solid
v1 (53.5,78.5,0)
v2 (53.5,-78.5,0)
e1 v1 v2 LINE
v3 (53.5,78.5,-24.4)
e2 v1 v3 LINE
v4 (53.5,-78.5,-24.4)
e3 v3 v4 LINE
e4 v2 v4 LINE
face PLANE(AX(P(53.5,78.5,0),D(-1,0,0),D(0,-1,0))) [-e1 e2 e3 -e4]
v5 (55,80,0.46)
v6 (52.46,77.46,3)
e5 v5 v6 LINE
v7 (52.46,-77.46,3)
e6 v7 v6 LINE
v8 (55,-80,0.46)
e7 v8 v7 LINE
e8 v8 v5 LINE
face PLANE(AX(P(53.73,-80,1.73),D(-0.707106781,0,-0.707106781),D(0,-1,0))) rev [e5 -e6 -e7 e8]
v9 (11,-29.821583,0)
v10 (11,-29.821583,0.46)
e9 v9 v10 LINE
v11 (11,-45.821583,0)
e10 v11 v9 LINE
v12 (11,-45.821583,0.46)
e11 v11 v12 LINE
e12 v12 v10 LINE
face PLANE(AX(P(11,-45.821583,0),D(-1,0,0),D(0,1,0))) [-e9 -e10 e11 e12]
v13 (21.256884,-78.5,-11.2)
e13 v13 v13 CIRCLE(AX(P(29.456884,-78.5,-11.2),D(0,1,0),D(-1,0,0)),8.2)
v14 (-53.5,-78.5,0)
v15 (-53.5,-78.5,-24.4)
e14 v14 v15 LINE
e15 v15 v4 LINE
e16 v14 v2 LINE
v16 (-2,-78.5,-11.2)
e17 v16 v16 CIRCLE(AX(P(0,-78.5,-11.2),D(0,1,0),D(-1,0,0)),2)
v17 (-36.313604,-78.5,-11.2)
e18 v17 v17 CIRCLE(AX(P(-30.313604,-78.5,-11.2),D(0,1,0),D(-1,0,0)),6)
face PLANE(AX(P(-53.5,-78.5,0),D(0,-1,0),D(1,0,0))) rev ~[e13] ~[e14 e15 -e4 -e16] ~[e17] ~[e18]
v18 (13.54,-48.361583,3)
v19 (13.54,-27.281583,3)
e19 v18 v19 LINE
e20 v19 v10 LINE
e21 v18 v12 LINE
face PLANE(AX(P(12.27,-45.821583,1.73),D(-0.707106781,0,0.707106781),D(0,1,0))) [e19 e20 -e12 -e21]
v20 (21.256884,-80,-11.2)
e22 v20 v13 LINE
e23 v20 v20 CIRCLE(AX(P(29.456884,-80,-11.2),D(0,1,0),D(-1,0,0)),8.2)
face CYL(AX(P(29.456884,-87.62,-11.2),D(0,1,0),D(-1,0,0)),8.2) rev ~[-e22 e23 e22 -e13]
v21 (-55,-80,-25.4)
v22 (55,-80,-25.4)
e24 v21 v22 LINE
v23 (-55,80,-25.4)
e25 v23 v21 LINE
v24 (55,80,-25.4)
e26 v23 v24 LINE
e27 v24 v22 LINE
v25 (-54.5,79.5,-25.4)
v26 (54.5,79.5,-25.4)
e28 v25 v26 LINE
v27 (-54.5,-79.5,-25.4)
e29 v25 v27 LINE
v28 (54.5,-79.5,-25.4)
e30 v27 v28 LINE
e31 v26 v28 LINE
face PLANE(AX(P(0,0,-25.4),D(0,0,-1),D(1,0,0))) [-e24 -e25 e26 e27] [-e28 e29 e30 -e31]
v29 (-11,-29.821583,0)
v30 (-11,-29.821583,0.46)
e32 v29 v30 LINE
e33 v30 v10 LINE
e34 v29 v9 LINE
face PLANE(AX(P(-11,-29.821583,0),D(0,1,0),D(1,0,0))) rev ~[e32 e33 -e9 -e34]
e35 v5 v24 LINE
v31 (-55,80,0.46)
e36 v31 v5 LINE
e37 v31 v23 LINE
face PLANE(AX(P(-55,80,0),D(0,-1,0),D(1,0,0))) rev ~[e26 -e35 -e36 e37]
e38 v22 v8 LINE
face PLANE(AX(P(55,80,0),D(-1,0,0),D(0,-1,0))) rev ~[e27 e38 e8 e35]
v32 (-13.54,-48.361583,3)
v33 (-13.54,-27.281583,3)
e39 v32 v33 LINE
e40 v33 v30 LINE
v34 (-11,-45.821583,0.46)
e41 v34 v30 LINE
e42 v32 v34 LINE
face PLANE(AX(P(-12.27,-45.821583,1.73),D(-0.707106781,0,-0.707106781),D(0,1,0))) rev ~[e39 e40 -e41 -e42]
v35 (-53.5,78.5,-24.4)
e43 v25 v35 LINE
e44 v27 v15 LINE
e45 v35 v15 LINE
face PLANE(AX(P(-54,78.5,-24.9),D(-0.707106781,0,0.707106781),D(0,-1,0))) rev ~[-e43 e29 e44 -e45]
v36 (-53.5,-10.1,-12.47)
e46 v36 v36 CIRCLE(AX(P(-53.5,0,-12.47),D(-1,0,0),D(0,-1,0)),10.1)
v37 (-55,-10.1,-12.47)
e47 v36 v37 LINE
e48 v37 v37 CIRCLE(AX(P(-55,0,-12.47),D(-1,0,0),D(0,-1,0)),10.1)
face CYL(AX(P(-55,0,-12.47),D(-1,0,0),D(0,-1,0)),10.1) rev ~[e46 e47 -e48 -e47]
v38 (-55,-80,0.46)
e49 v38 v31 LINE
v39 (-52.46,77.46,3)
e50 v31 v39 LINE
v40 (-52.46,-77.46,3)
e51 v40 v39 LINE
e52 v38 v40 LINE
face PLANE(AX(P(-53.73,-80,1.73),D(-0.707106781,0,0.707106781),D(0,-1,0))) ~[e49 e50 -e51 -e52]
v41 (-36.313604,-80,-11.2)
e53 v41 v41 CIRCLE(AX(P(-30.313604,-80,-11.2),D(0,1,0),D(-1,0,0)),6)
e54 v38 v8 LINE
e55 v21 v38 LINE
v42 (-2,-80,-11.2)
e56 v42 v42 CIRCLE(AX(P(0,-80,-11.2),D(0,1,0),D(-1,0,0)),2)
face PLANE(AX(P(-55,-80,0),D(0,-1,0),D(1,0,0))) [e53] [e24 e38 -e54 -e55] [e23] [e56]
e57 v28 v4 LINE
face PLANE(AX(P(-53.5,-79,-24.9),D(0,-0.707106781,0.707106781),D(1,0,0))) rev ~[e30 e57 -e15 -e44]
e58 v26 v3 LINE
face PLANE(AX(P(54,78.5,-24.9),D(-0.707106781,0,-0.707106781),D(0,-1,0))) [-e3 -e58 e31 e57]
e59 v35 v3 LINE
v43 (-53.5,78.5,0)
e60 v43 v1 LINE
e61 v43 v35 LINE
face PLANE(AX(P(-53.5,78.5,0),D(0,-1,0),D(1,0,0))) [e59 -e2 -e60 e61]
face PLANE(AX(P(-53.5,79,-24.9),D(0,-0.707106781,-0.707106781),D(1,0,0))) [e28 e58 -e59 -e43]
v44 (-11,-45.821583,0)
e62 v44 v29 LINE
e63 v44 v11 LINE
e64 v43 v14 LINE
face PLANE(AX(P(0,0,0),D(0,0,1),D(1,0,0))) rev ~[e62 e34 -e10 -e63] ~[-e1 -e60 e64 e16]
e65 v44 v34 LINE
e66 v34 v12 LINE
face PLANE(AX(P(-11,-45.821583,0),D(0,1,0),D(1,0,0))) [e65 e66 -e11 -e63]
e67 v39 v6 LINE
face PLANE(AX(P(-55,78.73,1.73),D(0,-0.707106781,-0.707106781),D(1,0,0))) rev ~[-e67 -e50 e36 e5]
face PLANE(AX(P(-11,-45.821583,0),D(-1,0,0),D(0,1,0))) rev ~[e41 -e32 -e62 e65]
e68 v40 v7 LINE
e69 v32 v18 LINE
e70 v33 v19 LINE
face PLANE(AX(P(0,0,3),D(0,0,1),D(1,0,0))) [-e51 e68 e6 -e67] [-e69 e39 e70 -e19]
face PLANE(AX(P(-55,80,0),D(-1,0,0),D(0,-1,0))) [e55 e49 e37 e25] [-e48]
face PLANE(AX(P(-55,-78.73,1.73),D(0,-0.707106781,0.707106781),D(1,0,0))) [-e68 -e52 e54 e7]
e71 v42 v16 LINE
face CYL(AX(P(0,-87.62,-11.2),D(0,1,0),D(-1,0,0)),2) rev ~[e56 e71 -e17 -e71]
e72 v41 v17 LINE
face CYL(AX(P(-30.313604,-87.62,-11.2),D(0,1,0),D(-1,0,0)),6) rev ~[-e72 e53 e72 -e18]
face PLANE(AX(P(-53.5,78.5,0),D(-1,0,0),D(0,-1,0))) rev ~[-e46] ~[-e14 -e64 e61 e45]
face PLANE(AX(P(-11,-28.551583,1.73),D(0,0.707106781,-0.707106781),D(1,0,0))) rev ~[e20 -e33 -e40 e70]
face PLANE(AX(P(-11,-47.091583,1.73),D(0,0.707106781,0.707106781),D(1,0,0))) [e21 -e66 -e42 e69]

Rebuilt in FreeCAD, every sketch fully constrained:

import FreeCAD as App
import Part
import Sketcher
Q = App.Units.Quantity


def edges_at(feature, points):
    """Names of the edges that pass closest to the given points."""
    edges = feature.Shape.Edges
    near = lambda p: min(range(len(edges)), key=lambda i: edges[i].distToShape(Part.Vertex(*p))[0])
    return sorted({f"Edge{near(p) + 1}" for p in points})


def add_polygon(sketch, points):
    """Adds a closed chain of lines whose ends are joined by coincident constraints."""
    first, n = sketch.GeometryCount, len(points)
    for a, b in zip(points, points[1:] + points[:1]):
        sketch.addGeometry(Part.LineSegment(App.Vector(*a, 0), App.Vector(*b, 0)), False)
    for i in range(n):
        sketch.addConstraint(Sketcher.Constraint("Coincident", first + i, 2, first + (i + 1) % n, 1))

doc = App.newDocument("Part")
body = doc.addObject("PartDesign::Body", "Body")

sketch1 = body.newObject("Sketcher::SketchObject", "Sketch")
sketch1.AttachmentSupport = (doc.getObject("XY_Plane"), [""])
sketch1.MapMode = "FlatFace"
add_polygon(sketch1, [(-55, 80), (-55, -80), (55, -80), (55, 80)])
add_polygon(sketch1, [(11, -45.821583), (-11, -45.821583), (-11, -29.821583), (11, -29.821583)])
sketch1.addConstraint([
    Sketcher.Constraint("Vertical", 0),
    Sketcher.Constraint("Horizontal", 1),
    Sketcher.Constraint("Vertical", 2),
    Sketcher.Constraint("Horizontal", 3),
    Sketcher.Constraint("Horizontal", 4),
    Sketcher.Constraint("Vertical", 5),
    Sketcher.Constraint("Horizontal", 6),
    Sketcher.Constraint("Vertical", 7),
    Sketcher.Constraint("Symmetric", 0, 2, 2, 2, -1, 1),
    Sketcher.Constraint("DistanceX", 1, 1, 1, 2, Q("110 mm")),
    Sketcher.Constraint("DistanceX", 4, 2, 4, 1, Q("22 mm")),
    Sketcher.Constraint("DistanceY", 0, 2, 0, 1, Q("160 mm")),
    Sketcher.Constraint("DistanceY", 5, 1, 5, 2, Q("16 mm")),
    Sketcher.Constraint("DistanceX", 4, 2, -1, 1, Q("11 mm")),
    Sketcher.Constraint("DistanceY", 4, 2, -1, 1, Q("45.821583 mm")),
])
pad1 = body.newObject("PartDesign::Pad", "Pad")
pad1.Profile = sketch1
pad1.Length = 3

sketch2 = body.newObject("Sketcher::SketchObject", "Sketch001")
sketch2.AttachmentSupport = (doc.getObject("XY_Plane"), [""])
sketch2.MapMode = "FlatFace"
add_polygon(sketch2, [(-55, -80), (-55, 80), (55, 80), (55, -80)])
add_polygon(sketch2, [(53.5, 78.5), (-53.5, 78.5), (-53.5, -78.5), (53.5, -78.5)])
sketch2.addConstraint([
    Sketcher.Constraint("Vertical", 0),
    Sketcher.Constraint("Horizontal", 1),
    Sketcher.Constraint("Vertical", 2),
    Sketcher.Constraint("Horizontal", 3),
    Sketcher.Constraint("Horizontal", 4),
    Sketcher.Constraint("Vertical", 5),
    Sketcher.Constraint("Horizontal", 6),
    Sketcher.Constraint("Vertical", 7),
    Sketcher.Constraint("Symmetric", 0, 2, 2, 2, -1, 1),
    Sketcher.Constraint("Symmetric", 4, 2, 6, 2, -1, 1),
    Sketcher.Constraint("DistanceX", 1, 1, 1, 2, Q("110 mm")),
    Sketcher.Constraint("DistanceX", 4, 2, 4, 1, Q("107 mm")),
    Sketcher.Constraint("DistanceY", 0, 1, 0, 2, Q("160 mm")),
    Sketcher.Constraint("DistanceY", 5, 2, 5, 1, Q("157 mm")),
])
pad2 = body.newObject("PartDesign::Pad", "Pad001")
pad2.Profile = sketch2
pad2.Length = 25.4
pad2.Reversed = True

sketch3 = body.newObject("Sketcher::SketchObject", "Sketch002")
sketch3.AttachmentSupport = (doc.getObject("XZ_Plane"), [""])
sketch3.MapMode = "FlatFace"
sketch3.AttachmentOffset = App.Placement(App.Vector(0, 0, 80), App.Rotation())
sketch3.addGeometry(Part.Circle(App.Vector(29.456884, -11.2, 0), App.Vector(0, 0, 1), 8.2), False)
sketch3.addConstraint([
    Sketcher.Constraint("Diameter", 0, Q("16.4 mm")),
    Sketcher.Constraint("DistanceY", 0, 3, -1, 1, Q("11.2 mm")),
    Sketcher.Constraint("DistanceX", -1, 1, 0, 3, Q("29.456884 mm")),
])
doc.recompute()
hole = body.newObject("PartDesign::Hole", "Hole")
hole.Profile = sketch3
hole.ThreadType = "None"
hole.Diameter = 16.4
hole.DepthType = "Dimension"
hole.Depth = 7.62
hole.DrillPoint = "Flat"

sketch4 = body.newObject("Sketcher::SketchObject", "Sketch003")
sketch4.AttachmentSupport = (doc.getObject("XZ_Plane"), [""])
sketch4.MapMode = "FlatFace"
sketch4.AttachmentOffset = App.Placement(App.Vector(0, 0, 80), App.Rotation())
sketch4.addGeometry(Part.Circle(App.Vector(0, -11.2, 0), App.Vector(0, 0, 1), 2), False)
sketch4.addConstraint([
    Sketcher.Constraint("PointOnObject", 0, 3, -2),
    Sketcher.Constraint("Diameter", 0, Q("4 mm")),
    Sketcher.Constraint("DistanceY", 0, 3, -1, 1, Q("11.2 mm")),
])
doc.recompute()
hole2 = body.newObject("PartDesign::Hole", "Hole001")
hole2.Profile = sketch4
hole2.ThreadType = "None"
hole2.Diameter = 4
hole2.DepthType = "Dimension"
hole2.Depth = 7.62
hole2.DrillPoint = "Flat"

sketch5 = body.newObject("Sketcher::SketchObject", "Sketch004")
sketch5.AttachmentSupport = (doc.getObject("XZ_Plane"), [""])
sketch5.MapMode = "FlatFace"
sketch5.AttachmentOffset = App.Placement(App.Vector(0, 0, 80), App.Rotation())
sketch5.addGeometry(Part.Circle(App.Vector(-30.313604, -11.2, 0), App.Vector(0, 0, 1), 6), False)
sketch5.addConstraint([
    Sketcher.Constraint("Diameter", 0, Q("12 mm")),
    Sketcher.Constraint("DistanceY", 0, 3, -1, 1, Q("11.2 mm")),
    Sketcher.Constraint("DistanceX", 0, 3, -1, 1, Q("30.313604 mm")),
])
doc.recompute()
hole3 = body.newObject("PartDesign::Hole", "Hole002")
hole3.Profile = sketch5
hole3.ThreadType = "None"
hole3.Diameter = 12
hole3.DepthType = "Dimension"
hole3.Depth = 7.62
hole3.DrillPoint = "Flat"
doc.recompute()

chamfer = body.newObject("PartDesign::Chamfer", "Chamfer")
chamfer.Base = (hole3, edges_at(hole3, [
    (53.5, 0, -25.4),
    (0, 78.5, -25.4),
    (-53.5, 0, -25.4),
    (0, -78.5, -25.4),
]))
chamfer.Size = 1
doc.recompute()

chamfer2 = body.newObject("PartDesign::Chamfer", "Chamfer001")
chamfer2.Base = (chamfer, edges_at(chamfer, [
    (0, -45.822, 3),
    (-11, -37.822, 3),
    (11, -37.822, 3),
    (-55, 0, 3),
    (0, -80, 3),
    (55, 0, 3),
    (0, 80, 3),
    (0, -29.822, 3),
]))
chamfer2.Size = 2.54

sketch6 = body.newObject("Sketcher::SketchObject", "Sketch005")
sketch6.AttachmentSupport = (doc.getObject("YZ_Plane"), [""])
sketch6.MapMode = "FlatFace"
sketch6.AttachmentOffset = App.Placement(App.Vector(0, 0, -55), App.Rotation())
sketch6.addGeometry(Part.Circle(App.Vector(0, -12.47, 0), App.Vector(0, 0, 1), 10.1), False)
sketch6.addConstraint([
    Sketcher.Constraint("PointOnObject", 0, 3, -2),
    Sketcher.Constraint("Diameter", 0, Q("20.2 mm")),
    Sketcher.Constraint("DistanceY", 0, 3, -1, 1, Q("12.47 mm")),
])
pocket1 = body.newObject("PartDesign::Pocket", "Pocket")
pocket1.Profile = sketch6
pocket1.Length = 25.4
pocket1.Midplane = True

doc.recompute()
